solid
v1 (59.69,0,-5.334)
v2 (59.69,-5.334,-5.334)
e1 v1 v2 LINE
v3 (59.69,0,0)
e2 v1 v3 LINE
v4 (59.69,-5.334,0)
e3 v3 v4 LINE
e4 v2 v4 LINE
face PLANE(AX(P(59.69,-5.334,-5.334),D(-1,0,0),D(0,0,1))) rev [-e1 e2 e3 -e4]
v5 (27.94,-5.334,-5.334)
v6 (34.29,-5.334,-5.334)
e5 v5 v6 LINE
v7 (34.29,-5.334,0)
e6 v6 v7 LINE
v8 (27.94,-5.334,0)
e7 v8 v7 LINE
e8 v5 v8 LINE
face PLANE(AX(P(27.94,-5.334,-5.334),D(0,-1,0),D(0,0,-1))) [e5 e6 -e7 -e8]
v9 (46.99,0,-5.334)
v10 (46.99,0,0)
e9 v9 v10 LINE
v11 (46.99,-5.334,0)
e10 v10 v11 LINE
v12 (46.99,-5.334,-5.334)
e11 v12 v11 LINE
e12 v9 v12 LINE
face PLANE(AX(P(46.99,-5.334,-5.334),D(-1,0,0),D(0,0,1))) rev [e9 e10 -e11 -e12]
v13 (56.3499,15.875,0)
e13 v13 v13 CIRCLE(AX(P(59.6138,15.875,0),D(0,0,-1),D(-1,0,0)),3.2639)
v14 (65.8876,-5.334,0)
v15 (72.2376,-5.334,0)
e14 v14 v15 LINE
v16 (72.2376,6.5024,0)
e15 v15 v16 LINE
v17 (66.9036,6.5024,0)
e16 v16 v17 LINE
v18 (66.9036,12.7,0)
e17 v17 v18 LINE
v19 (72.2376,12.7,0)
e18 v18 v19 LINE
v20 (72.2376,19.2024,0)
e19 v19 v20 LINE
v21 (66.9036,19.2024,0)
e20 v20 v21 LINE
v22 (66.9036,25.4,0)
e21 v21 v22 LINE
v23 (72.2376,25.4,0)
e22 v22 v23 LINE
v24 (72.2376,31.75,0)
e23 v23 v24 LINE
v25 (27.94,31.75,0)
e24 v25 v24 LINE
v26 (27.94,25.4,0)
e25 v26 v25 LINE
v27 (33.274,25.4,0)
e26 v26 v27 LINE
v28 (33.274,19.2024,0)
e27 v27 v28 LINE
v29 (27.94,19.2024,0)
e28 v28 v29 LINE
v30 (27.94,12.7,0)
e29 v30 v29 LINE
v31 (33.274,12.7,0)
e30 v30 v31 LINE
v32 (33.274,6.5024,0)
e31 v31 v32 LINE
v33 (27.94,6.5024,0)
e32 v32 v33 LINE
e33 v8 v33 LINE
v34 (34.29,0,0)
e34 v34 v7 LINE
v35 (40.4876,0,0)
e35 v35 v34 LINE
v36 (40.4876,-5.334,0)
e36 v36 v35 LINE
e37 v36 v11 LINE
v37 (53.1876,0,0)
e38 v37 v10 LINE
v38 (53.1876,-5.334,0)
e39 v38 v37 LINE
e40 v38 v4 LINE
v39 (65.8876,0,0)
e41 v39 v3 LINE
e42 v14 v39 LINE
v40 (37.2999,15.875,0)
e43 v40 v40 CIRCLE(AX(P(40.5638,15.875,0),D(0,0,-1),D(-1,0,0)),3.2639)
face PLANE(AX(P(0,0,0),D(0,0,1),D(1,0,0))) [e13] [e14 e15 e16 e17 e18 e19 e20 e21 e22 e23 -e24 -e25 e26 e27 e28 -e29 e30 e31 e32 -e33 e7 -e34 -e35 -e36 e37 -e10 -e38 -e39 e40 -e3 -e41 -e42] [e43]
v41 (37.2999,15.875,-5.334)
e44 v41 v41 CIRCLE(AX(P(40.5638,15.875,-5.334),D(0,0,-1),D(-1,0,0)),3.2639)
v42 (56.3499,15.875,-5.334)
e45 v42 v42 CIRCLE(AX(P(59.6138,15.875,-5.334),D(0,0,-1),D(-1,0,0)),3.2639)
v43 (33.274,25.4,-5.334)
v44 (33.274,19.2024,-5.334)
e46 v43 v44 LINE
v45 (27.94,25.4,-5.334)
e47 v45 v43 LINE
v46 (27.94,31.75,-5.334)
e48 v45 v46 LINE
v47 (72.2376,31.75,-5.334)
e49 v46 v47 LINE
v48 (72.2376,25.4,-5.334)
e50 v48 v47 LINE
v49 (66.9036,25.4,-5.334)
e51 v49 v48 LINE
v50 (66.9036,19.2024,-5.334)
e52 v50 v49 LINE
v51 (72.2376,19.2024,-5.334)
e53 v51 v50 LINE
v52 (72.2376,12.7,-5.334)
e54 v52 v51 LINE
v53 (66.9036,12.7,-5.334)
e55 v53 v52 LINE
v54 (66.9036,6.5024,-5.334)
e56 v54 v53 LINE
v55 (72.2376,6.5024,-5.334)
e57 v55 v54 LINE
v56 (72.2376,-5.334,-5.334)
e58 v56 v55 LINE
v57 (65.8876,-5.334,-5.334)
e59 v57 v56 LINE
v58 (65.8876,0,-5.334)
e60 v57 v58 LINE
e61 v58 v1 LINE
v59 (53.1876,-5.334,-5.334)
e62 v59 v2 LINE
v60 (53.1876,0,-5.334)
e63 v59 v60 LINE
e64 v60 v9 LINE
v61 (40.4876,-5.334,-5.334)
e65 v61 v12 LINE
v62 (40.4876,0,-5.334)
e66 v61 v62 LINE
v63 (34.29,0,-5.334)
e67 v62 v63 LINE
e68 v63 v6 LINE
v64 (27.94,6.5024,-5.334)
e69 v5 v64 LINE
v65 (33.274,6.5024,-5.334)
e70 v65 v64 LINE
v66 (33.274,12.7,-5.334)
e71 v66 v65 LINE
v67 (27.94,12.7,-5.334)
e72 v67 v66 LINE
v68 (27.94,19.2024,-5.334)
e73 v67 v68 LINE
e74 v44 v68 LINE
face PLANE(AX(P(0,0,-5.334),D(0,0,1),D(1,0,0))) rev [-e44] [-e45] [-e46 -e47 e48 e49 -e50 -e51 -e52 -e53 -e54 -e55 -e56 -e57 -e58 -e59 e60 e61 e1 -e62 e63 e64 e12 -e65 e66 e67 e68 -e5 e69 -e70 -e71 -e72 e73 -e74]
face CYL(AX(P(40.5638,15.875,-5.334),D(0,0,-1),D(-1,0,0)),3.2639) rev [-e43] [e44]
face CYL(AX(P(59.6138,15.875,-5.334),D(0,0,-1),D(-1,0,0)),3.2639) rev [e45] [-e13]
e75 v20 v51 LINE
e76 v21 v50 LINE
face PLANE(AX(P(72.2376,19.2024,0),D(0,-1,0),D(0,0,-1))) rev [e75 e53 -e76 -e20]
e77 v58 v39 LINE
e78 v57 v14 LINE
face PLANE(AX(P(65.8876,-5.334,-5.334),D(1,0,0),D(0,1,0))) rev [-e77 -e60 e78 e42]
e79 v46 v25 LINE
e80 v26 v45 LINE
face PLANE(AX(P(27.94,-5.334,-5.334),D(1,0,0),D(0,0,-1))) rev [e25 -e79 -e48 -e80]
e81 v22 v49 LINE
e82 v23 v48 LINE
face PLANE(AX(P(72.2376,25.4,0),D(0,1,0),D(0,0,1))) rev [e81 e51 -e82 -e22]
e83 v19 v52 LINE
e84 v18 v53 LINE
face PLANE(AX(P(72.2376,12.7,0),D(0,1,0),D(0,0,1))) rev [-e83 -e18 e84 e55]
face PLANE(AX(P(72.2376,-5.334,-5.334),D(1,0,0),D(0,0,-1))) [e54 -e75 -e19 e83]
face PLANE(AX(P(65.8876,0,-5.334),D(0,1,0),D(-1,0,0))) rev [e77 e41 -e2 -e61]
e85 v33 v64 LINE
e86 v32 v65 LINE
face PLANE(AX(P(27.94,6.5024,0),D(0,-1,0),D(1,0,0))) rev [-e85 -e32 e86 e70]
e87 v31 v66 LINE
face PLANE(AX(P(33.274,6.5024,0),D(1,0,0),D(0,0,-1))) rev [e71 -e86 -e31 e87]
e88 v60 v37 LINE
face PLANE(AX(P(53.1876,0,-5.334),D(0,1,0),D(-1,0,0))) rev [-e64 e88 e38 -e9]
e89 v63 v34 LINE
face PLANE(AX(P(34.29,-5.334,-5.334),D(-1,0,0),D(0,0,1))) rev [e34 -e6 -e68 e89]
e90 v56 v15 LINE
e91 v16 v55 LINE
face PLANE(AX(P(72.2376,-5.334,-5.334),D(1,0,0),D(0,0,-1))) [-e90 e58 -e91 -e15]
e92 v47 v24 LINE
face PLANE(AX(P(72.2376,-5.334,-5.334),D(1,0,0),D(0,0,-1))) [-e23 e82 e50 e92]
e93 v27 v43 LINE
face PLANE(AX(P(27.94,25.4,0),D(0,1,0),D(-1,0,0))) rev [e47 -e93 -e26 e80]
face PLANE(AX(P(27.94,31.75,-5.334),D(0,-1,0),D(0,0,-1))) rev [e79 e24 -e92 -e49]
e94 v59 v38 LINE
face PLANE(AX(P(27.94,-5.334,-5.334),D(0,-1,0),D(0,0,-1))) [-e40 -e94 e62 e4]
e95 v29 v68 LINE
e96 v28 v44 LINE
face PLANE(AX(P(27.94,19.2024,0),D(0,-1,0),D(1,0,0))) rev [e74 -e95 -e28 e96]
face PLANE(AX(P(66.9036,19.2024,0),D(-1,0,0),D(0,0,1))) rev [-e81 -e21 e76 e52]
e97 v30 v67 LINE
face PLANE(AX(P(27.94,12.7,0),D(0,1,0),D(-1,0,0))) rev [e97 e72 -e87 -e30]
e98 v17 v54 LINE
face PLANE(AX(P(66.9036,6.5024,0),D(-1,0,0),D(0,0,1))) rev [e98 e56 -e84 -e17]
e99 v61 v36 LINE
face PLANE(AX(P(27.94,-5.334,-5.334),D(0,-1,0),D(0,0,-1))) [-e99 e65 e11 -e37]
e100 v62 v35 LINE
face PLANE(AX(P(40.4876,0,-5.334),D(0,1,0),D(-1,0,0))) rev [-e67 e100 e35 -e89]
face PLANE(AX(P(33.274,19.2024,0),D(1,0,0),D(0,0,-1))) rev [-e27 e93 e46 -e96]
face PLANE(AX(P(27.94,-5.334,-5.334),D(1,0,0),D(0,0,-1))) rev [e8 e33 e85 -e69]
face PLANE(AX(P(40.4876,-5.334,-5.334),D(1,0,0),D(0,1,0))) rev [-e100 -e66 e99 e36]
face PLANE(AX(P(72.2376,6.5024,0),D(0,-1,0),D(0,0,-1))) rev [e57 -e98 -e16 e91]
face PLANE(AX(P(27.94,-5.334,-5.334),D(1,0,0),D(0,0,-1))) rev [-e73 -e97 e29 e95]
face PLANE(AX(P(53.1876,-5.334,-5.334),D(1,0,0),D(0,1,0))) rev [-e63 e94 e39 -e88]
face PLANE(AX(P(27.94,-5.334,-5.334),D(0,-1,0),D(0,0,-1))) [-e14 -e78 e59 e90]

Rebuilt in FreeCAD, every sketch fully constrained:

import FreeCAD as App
import Part
import Sketcher
Q = App.Units.Quantity


def add_polygon(sketch, points):
    """Adds a closed chain of lines whose ends are joined by coincident constraints."""
    first, n = sketch.GeometryCount, len(points)
    for a, b in zip(points, points[1:] + points[:1]):
        sketch.addGeometry(Part.LineSegment(App.Vector(*a, 0), App.Vector(*b, 0)), False)
    for i in range(n):
        sketch.addConstraint(Sketcher.Constraint("Coincident", first + i, 2, first + (i + 1) % n, 1))

doc = App.newDocument("Part")
params = doc.addObject("Spreadsheet::Sheet", "Params")
for row, (alias, value) in enumerate([
    ("sketch1_height", "1.46 in"),
    ("sketch1_width", "1.744 in"),
    ("pad1_length", "0.21 in"),
    ("sketch2_height", "0.21 in"),
    ("sketch2_width", "0.244 in"),
    ("linearpattern_pitch", "0.5 in"),
    ("sketch3_width", "0.21 in"),
    ("sketch3_height", "0.244 in"),
    ("linearpattern2_pitch", "0.5 in"),
    ("sketch4_diameter", "0.257 in"),
    ("hole_diameter", "0.257 in"),
], start=1):
    params.set(f"A{row}", alias)
    params.set(f"B{row}", "=" + value)
    params.setAlias(f"B{row}", alias)

body = doc.addObject("PartDesign::Body", "Body")

# Sketch on XY plane
sketch1 = body.newObject("Sketcher::SketchObject", "Sketch")
sketch1.AttachmentSupport = (doc.getObject("XY_Plane"), [""])
sketch1.MapMode = "FlatFace"
add_polygon(sketch1, [(27.94, 31.75), (27.94, -5.334), (72.2376, -5.334), (72.2376, 31.75)])  # lines 0-3
sketch1.addConstraint([
    Sketcher.Constraint("Vertical", 0),
    Sketcher.Constraint("Horizontal", 1),
    Sketcher.Constraint("Vertical", 2),
    Sketcher.Constraint("Horizontal", 3),
    Sketcher.Constraint("DistanceY", 0, 2, 0, 1, Q("1.46 in")),
    Sketcher.Constraint("DistanceX", -1, 1, 0, 2, Q("1.1 in")),
    Sketcher.Constraint("DistanceX", 1, 1, 1, 2, Q("1.744 in")),
    Sketcher.Constraint("DistanceY", 0, 2, -1, 1, Q("0.21 in")),
])
sketch1.setExpression("Constraints[8]", "Params.sketch1_height")
sketch1.setExpression("Constraints[10]", "Params.sketch1_width")
pad1 = body.newObject("PartDesign::Pad", "Pad")
pad1.Profile = sketch1
pad1.setExpression("Length", "Params.pad1_length")
pad1.Reversed = True

# Sketch on XY plane
sketch2 = body.newObject("Sketcher::SketchObject", "Sketch001")
sketch2.AttachmentSupport = (doc.getObject("XY_Plane"), [""])
sketch2.MapMode = "FlatFace"
add_polygon(sketch2, [(59.69, 0), (59.69, -5.334), (65.8876, -5.334), (65.8876, 0)])  # lines 0-3
sketch2.addConstraint([
    Sketcher.Constraint("Vertical", 0),
    Sketcher.Constraint("Horizontal", 1),
    Sketcher.Constraint("Vertical", 2),
    Sketcher.Constraint("Horizontal", 3),
    Sketcher.Constraint("PointOnObject", 2, 2, -1),
    Sketcher.Constraint("DistanceY", 0, 2, 0, 1, Q("0.21 in")),
    Sketcher.Constraint("DistanceX", 1, 1, 1, 2, Q("0.244 in")),
    Sketcher.Constraint("DistanceX", -1, 1, 0, 2, Q("2.35 in")),
])
sketch2.setExpression("Constraints[9]", "Params.sketch2_height")
sketch2.setExpression("Constraints[10]", "Params.sketch2_width")
pocket1 = body.newObject("PartDesign::Pocket", "Pocket")
pocket1.Profile = sketch2
pocket1.Type = "ThroughAll"
doc.recompute()

linearpattern = body.newObject("PartDesign::LinearPattern", "LinearPattern")
linearpattern.Originals = [pocket1]
linearpattern.Direction = (doc.getObject("X_Axis"), [""])
linearpattern.Mode = "offset"
linearpattern.setExpression("Offset", "Params.linearpattern_pitch")
linearpattern.Occurrences = 3
linearpattern.Reversed = True
body.Tip = linearpattern

# Sketch on XY plane
sketch3 = body.newObject("Sketcher::SketchObject", "Sketch002")
sketch3.AttachmentSupport = (doc.getObject("XY_Plane"), [""])
sketch3.MapMode = "FlatFace"
sketch3.AttachmentOffset = App.Placement(App.Vector(0, 0, -0.21 * 25.4), App.Rotation())
add_polygon(sketch3, [(72.2376, 12.7), (72.2376, 6.5024), (66.9036, 6.5024), (66.9036, 12.7)])  # lines 0-3
add_polygon(sketch3, [(33.274, 12.7), (33.274, 6.5024), (27.94, 6.5024), (27.94, 12.7)])  # lines 4-7
sketch3.addConstraint([
    Sketcher.Constraint("Vertical", 0),
    Sketcher.Constraint("Horizontal", 1),
    Sketcher.Constraint("Vertical", 2),
    Sketcher.Constraint("Horizontal", 3),
    Sketcher.Constraint("Vertical", 4),
    Sketcher.Constraint("Horizontal", 5),
    Sketcher.Constraint("Vertical", 6),
    Sketcher.Constraint("Horizontal", 7),
    Sketcher.Constraint("Horizontal", 1, 2, 4, 2),
    Sketcher.Constraint("Horizontal", 3, 2, 6, 2),
    Sketcher.Constraint("Equal", 3, 5),
    Sketcher.Constraint("DistanceX", 1, 2, 1, 1, Q("0.21 in")),
    Sketcher.Constraint("DistanceY", -1, 1, 2, 2, Q("0.5 in")),
    Sketcher.Constraint("DistanceX", -1, 1, 5, 2, Q("1.1 in")),
    Sketcher.Constraint("DistanceY", 0, 2, 0, 1, Q("0.244 in")),
    Sketcher.Constraint("DistanceX", -1, 1, 0, 2, Q("2.844 in")),
])
sketch3.setExpression("Constraints[19]", "Params.sketch3_width")
sketch3.setExpression("Constraints[22]", "Params.sketch3_height")
pocket2 = body.newObject("PartDesign::Pocket", "Pocket001")
pocket2.Profile = sketch3
pocket2.Type = "ThroughAll"
pocket2.Reversed = True
doc.recompute()

linearpattern2 = body.newObject("PartDesign::LinearPattern", "LinearPattern001")
linearpattern2.Originals = [pocket2]
linearpattern2.Direction = (doc.getObject("Y_Axis"), [""])
linearpattern2.Mode = "offset"
linearpattern2.setExpression("Offset", "Params.linearpattern2_pitch")
linearpattern2.Occurrences = 2
body.Tip = linearpattern2

# Sketch on XY plane
sketch4 = body.newObject("Sketcher::SketchObject", "Sketch003")
sketch4.AttachmentSupport = (doc.getObject("XY_Plane"), [""])
sketch4.MapMode = "FlatFace"
sketch4.AttachmentOffset = App.Placement(App.Vector(0, 0, -0.21 * 25.4), App.Rotation())
sketch4.addGeometry([
    Part.Circle(App.Vector(59.6138, 15.875, 0), App.Vector(0, 0, 1), 3.2639),
    Part.Circle(App.Vector(40.5638, 15.875, 0), App.Vector(0, 0, 1), 3.2639),
], False)
sketch4.addConstraint([
    Sketcher.Constraint("Equal", 0, 1),
    Sketcher.Constraint("Horizontal", 0, 3, 1, 3),
    Sketcher.Constraint("Diameter", 0, Q("0.257 in")),
    Sketcher.Constraint("DistanceX", 1, 3, 0, 3, Q("0.75 in")),
    Sketcher.Constraint("DistanceX", -1, 1, 0, 3, Q("2.347 in")),
    Sketcher.Constraint("DistanceY", -1, 1, 0, 3, Q("0.625 in")),
])
sketch4.setExpression("Constraints[2]", "Params.sketch4_diameter")
doc.recompute()
hole = body.newObject("PartDesign::Hole", "Hole")
hole.Profile = sketch4
hole.ThreadType = "None"
hole.setExpression("Diameter", "Params.hole_diameter")
hole.DepthType = "ThroughAll"
hole.Reversed = True

doc.recompute()
